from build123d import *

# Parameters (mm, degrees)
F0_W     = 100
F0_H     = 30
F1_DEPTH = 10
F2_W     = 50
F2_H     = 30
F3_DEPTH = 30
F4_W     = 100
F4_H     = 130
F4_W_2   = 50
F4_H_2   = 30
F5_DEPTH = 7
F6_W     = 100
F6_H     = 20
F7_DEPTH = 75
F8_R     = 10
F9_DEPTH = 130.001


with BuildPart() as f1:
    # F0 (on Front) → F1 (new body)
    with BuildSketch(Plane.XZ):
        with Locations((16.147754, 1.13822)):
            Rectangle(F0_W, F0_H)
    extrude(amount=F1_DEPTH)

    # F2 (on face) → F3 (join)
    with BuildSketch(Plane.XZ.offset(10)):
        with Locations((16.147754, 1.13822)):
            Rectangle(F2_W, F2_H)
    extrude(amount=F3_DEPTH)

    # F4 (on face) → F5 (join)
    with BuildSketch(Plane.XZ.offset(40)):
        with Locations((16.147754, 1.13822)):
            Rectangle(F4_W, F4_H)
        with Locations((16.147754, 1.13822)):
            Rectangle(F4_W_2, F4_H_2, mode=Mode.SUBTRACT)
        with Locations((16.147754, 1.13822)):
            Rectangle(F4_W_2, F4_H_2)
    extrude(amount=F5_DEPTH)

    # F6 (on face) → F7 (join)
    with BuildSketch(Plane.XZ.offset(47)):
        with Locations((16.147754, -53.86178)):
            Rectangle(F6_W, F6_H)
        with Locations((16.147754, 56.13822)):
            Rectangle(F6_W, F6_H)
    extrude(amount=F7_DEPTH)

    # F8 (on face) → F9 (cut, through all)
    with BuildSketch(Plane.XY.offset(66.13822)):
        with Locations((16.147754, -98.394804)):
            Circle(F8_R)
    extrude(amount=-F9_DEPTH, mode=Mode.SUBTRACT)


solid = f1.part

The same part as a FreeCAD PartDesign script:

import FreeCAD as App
import Part
import Sketcher

V = App.Vector
Q = App.Units.Quantity

doc = App.newDocument("Part")
body = doc.addObject("PartDesign::Body", "Body")

# Sketch on XZ plane
sketch1 = body.newObject("Sketcher::SketchObject", "Sketch")
sketch1.AttachmentSupport = (doc.getObject("XZ_Plane"), [""])
sketch1.MapMode = "FlatFace"
sketch1.addGeometry(Part.LineSegment(V(-33.852246, 16.13822, 0), V(-33.852246, -13.86178, 0)), False)
sketch1.addGeometry(Part.LineSegment(V(-33.852246, -13.86178, 0), V(66.147754, -13.86178, 0)), False)
sketch1.addGeometry(Part.LineSegment(V(66.147754, -13.86178, 0), V(66.147754, 16.13822, 0)), False)
sketch1.addGeometry(Part.LineSegment(V(66.147754, 16.13822, 0), V(-33.852246, 16.13822, 0)), False)
sketch1.addConstraint(Sketcher.Constraint("Coincident", 0, 2, 1, 1))
sketch1.addConstraint(Sketcher.Constraint("Coincident", 1, 2, 2, 1))
sketch1.addConstraint(Sketcher.Constraint("Coincident", 2, 2, 3, 1))
sketch1.addConstraint(Sketcher.Constraint("Coincident", 3, 2, 0, 1))
sketch1.addConstraint(Sketcher.Constraint("Vertical", 0))
sketch1.addConstraint(Sketcher.Constraint("Horizontal", 1))
sketch1.addConstraint(Sketcher.Constraint("Vertical", 2))
sketch1.addConstraint(Sketcher.Constraint("Horizontal", 3))
sketch1.addConstraint(Sketcher.Constraint("DistanceX", 1, 1, 1, 2, Q("100 mm")))
sketch1.addConstraint(Sketcher.Constraint("DistanceY", 0, 2, 0, 1, Q("30 mm")))
sketch1.addConstraint(Sketcher.Constraint("DistanceY", 0, 2, -1, 1, Q("13.86178 mm")))
sketch1.addConstraint(Sketcher.Constraint("DistanceX", 0, 2, -1, 1, Q("33.852246 mm")))
pad1 = body.newObject("PartDesign::Pad", "Pad")
pad1.Profile = sketch1
pad1.Length = 10

# Sketch on XZ plane
sketch2 = body.newObject("Sketcher::SketchObject", "Sketch001")
sketch2.AttachmentSupport = (doc.getObject("XZ_Plane"), [""])
sketch2.MapMode = "FlatFace"
sketch2.AttachmentOffset = App.Placement(V(0, 0, 10), App.Rotation())
sketch2.addGeometry(Part.LineSegment(V(-8.852246, 16.13822, 0), V(-8.852246, -13.86178, 0)), False)
sketch2.addGeometry(Part.LineSegment(V(-8.852246, -13.86178, 0), V(41.147754, -13.86178, 0)), False)
sketch2.addGeometry(Part.LineSegment(V(41.147754, -13.86178, 0), V(41.147754, 16.13822, 0)), False)
sketch2.addGeometry(Part.LineSegment(V(41.147754, 16.13822, 0), V(-8.852246, 16.13822, 0)), False)
sketch2.addConstraint(Sketcher.Constraint("Coincident", 0, 2, 1, 1))
sketch2.addConstraint(Sketcher.Constraint("Coincident", 1, 2, 2, 1))
sketch2.addConstraint(Sketcher.Constraint("Coincident", 2, 2, 3, 1))
sketch2.addConstraint(Sketcher.Constraint("Coincident", 3, 2, 0, 1))
sketch2.addConstraint(Sketcher.Constraint("Vertical", 0))
sketch2.addConstraint(Sketcher.Constraint("Horizontal", 1))
sketch2.addConstraint(Sketcher.Constraint("Vertical", 2))
sketch2.addConstraint(Sketcher.Constraint("Horizontal", 3))
sketch2.addConstraint(Sketcher.Constraint("DistanceX", 1, 1, 1, 2, Q("50 mm")))
sketch2.addConstraint(Sketcher.Constraint("DistanceY", 0, 2, 0, 1, Q("30 mm")))
sketch2.addConstraint(Sketcher.Constraint("DistanceY", 0, 2, -1, 1, Q("13.86178 mm")))
sketch2.addConstraint(Sketcher.Constraint("DistanceX", 0, 2, -1, 1, Q("8.852246 mm")))
pad2 = body.newObject("PartDesign::Pad", "Pad001")
pad2.Profile = sketch2
pad2.Length = 30

# Sketch on XZ plane
sketch3 = body.newObject("Sketcher::SketchObject", "Sketch002")
sketch3.AttachmentSupport = (doc.getObject("XZ_Plane"), [""])
sketch3.MapMode = "FlatFace"
sketch3.AttachmentOffset = App.Placement(V(0, 0, 40), App.Rotation())
sketch3.addGeometry(Part.LineSegment(V(-33.852246, 66.13822, 0), V(-33.852246, -63.86178, 0)), False)
sketch3.addGeometry(Part.LineSegment(V(-33.852246, -63.86178, 0), V(66.147754, -63.86178, 0)), False)
sketch3.addGeometry(Part.LineSegment(V(66.147754, -63.86178, 0), V(66.147754, 66.13822, 0)), False)
sketch3.addGeometry(Part.LineSegment(V(66.147754, 66.13822, 0), V(-33.852246, 66.13822, 0)), False)
sketch3.addConstraint(Sketcher.Constraint("Coincident", 0, 2, 1, 1))
sketch3.addConstraint(Sketcher.Constraint("Coincident", 1, 2, 2, 1))
sketch3.addConstraint(Sketcher.Constraint("Coincident", 2, 2, 3, 1))
sketch3.addConstraint(Sketcher.Constraint("Coincident", 3, 2, 0, 1))
sketch3.addConstraint(Sketcher.Constraint("Vertical", 0))
sketch3.addConstraint(Sketcher.Constraint("Horizontal", 1))
sketch3.addConstraint(Sketcher.Constraint("Vertical", 2))
sketch3.addConstraint(Sketcher.Constraint("Horizontal", 3))
sketch3.addConstraint(Sketcher.Constraint("DistanceX", 1, 1, 1, 2, Q("100 mm")))
sketch3.addConstraint(Sketcher.Constraint("DistanceY", 0, 2, 0, 1, Q("130 mm")))
sketch3.addConstraint(Sketcher.Constraint("DistanceY", 0, 2, -1, 1, Q("63.86178 mm")))
sketch3.addConstraint(Sketcher.Constraint("DistanceX", 0, 2, -1, 1, Q("33.852246 mm")))
pad3 = body.newObject("PartDesign::Pad", "Pad002")
pad3.Profile = sketch3
pad3.Length = 7

# Sketch on XZ plane
sketch4 = body.newObject("Sketcher::SketchObject", "Sketch003")
sketch4.AttachmentSupport = (doc.getObject("XZ_Plane"), [""])
sketch4.MapMode = "FlatFace"
sketch4.AttachmentOffset = App.Placement(V(0, 0, 47), App.Rotation())
sketch4.addGeometry(Part.LineSegment(V(-33.852246, -43.86178, 0), V(-33.852246, -63.86178, 0)), False)
sketch4.addGeometry(Part.LineSegment(V(-33.852246, -63.86178, 0), V(66.147754, -63.86178, 0)), False)
sketch4.addGeometry(Part.LineSegment(V(66.147754, -63.86178, 0), V(66.147754, -43.86178, 0)), False)
sketch4.addGeometry(Part.LineSegment(V(66.147754, -43.86178, 0), V(-33.852246, -43.86178, 0)), False)
sketch4.addGeometry(Part.LineSegment(V(-33.852246, 66.13822, 0), V(-33.852246, 46.13822, 0)), False)
sketch4.addGeometry(Part.LineSegment(V(-33.852246, 46.13822, 0), V(66.147754, 46.13822, 0)), False)
sketch4.addGeometry(Part.LineSegment(V(66.147754, 46.13822, 0), V(66.147754, 66.13822, 0)), False)
sketch4.addGeometry(Part.LineSegment(V(66.147754, 66.13822, 0), V(-33.852246, 66.13822, 0)), False)
sketch4.addConstraint(Sketcher.Constraint("Coincident", 0, 2, 1, 1))
sketch4.addConstraint(Sketcher.Constraint("Coincident", 1, 2, 2, 1))
sketch4.addConstraint(Sketcher.Constraint("Coincident", 2, 2, 3, 1))
sketch4.addConstraint(Sketcher.Constraint("Coincident", 3, 2, 0, 1))
sketch4.addConstraint(Sketcher.Constraint("Coincident", 4, 2, 5, 1))
sketch4.addConstraint(Sketcher.Constraint("Coincident", 5, 2, 6, 1))
sketch4.addConstraint(Sketcher.Constraint("Coincident", 6, 2, 7, 1))
sketch4.addConstraint(Sketcher.Constraint("Coincident", 7, 2, 4, 1))
sketch4.addConstraint(Sketcher.Constraint("Vertical", 0))
sketch4.addConstraint(Sketcher.Constraint("Horizontal", 1))
sketch4.addConstraint(Sketcher.Constraint("Vertical", 2))
sketch4.addConstraint(Sketcher.Constraint("Horizontal", 3))
sketch4.addConstraint(Sketcher.Constraint("Vertical", 4))
sketch4.addConstraint(Sketcher.Constraint("Horizontal", 5))
sketch4.addConstraint(Sketcher.Constraint("Vertical", 6))
sketch4.addConstraint(Sketcher.Constraint("Horizontal", 7))
sketch4.addConstraint(Sketcher.Constraint("Vertical", 3, 2, 4, 2))
sketch4.addConstraint(Sketcher.Constraint("Vertical", 2, 2, 5, 2))
sketch4.addConstraint(Sketcher.Constraint("Equal", 2, 4))
sketch4.addConstraint(Sketcher.Constraint("DistanceX", 1, 1, 1, 2, Q("100 mm")))
sketch4.addConstraint(Sketcher.Constraint("DistanceY", 0, 2, 0, 1, Q("20 mm")))
sketch4.addConstraint(Sketcher.Constraint("DistanceY", 3, 2, 4, 2, Q("90 mm")))
sketch4.addConstraint(Sketcher.Constraint("DistanceY", 0, 2, -1, 1, Q("63.86178 mm")))
sketch4.addConstraint(Sketcher.Constraint("DistanceX", 0, 2, -1, 1, Q("33.852246 mm")))
pad4 = body.newObject("PartDesign::Pad", "Pad003")
pad4.Profile = sketch4
pad4.Length = 75

# Sketch on XY plane
sketch5 = body.newObject("Sketcher::SketchObject", "Sketch004")
sketch5.AttachmentSupport = (doc.getObject("XY_Plane"), [""])
sketch5.MapMode = "FlatFace"
sketch5.AttachmentOffset = App.Placement(V(0, 0, 66.13822), App.Rotation())
sketch5.addGeometry(Part.Circle(V(16.147754, -98.394804, 0), V(0, 0, 1), 10), False)
sketch5.addConstraint(Sketcher.Constraint("Diameter", 0, Q("20 mm")))
sketch5.addConstraint(Sketcher.Constraint("DistanceX", -1, 1, 0, 3, Q("16.147754 mm")))
sketch5.addConstraint(Sketcher.Constraint("DistanceY", 0, 3, -1, 1, Q("98.394804 mm")))
pocket1 = body.newObject("PartDesign::Pocket", "Pocket")
pocket1.Profile = sketch5
pocket1.Type = "ThroughAll"

doc.recompute()
